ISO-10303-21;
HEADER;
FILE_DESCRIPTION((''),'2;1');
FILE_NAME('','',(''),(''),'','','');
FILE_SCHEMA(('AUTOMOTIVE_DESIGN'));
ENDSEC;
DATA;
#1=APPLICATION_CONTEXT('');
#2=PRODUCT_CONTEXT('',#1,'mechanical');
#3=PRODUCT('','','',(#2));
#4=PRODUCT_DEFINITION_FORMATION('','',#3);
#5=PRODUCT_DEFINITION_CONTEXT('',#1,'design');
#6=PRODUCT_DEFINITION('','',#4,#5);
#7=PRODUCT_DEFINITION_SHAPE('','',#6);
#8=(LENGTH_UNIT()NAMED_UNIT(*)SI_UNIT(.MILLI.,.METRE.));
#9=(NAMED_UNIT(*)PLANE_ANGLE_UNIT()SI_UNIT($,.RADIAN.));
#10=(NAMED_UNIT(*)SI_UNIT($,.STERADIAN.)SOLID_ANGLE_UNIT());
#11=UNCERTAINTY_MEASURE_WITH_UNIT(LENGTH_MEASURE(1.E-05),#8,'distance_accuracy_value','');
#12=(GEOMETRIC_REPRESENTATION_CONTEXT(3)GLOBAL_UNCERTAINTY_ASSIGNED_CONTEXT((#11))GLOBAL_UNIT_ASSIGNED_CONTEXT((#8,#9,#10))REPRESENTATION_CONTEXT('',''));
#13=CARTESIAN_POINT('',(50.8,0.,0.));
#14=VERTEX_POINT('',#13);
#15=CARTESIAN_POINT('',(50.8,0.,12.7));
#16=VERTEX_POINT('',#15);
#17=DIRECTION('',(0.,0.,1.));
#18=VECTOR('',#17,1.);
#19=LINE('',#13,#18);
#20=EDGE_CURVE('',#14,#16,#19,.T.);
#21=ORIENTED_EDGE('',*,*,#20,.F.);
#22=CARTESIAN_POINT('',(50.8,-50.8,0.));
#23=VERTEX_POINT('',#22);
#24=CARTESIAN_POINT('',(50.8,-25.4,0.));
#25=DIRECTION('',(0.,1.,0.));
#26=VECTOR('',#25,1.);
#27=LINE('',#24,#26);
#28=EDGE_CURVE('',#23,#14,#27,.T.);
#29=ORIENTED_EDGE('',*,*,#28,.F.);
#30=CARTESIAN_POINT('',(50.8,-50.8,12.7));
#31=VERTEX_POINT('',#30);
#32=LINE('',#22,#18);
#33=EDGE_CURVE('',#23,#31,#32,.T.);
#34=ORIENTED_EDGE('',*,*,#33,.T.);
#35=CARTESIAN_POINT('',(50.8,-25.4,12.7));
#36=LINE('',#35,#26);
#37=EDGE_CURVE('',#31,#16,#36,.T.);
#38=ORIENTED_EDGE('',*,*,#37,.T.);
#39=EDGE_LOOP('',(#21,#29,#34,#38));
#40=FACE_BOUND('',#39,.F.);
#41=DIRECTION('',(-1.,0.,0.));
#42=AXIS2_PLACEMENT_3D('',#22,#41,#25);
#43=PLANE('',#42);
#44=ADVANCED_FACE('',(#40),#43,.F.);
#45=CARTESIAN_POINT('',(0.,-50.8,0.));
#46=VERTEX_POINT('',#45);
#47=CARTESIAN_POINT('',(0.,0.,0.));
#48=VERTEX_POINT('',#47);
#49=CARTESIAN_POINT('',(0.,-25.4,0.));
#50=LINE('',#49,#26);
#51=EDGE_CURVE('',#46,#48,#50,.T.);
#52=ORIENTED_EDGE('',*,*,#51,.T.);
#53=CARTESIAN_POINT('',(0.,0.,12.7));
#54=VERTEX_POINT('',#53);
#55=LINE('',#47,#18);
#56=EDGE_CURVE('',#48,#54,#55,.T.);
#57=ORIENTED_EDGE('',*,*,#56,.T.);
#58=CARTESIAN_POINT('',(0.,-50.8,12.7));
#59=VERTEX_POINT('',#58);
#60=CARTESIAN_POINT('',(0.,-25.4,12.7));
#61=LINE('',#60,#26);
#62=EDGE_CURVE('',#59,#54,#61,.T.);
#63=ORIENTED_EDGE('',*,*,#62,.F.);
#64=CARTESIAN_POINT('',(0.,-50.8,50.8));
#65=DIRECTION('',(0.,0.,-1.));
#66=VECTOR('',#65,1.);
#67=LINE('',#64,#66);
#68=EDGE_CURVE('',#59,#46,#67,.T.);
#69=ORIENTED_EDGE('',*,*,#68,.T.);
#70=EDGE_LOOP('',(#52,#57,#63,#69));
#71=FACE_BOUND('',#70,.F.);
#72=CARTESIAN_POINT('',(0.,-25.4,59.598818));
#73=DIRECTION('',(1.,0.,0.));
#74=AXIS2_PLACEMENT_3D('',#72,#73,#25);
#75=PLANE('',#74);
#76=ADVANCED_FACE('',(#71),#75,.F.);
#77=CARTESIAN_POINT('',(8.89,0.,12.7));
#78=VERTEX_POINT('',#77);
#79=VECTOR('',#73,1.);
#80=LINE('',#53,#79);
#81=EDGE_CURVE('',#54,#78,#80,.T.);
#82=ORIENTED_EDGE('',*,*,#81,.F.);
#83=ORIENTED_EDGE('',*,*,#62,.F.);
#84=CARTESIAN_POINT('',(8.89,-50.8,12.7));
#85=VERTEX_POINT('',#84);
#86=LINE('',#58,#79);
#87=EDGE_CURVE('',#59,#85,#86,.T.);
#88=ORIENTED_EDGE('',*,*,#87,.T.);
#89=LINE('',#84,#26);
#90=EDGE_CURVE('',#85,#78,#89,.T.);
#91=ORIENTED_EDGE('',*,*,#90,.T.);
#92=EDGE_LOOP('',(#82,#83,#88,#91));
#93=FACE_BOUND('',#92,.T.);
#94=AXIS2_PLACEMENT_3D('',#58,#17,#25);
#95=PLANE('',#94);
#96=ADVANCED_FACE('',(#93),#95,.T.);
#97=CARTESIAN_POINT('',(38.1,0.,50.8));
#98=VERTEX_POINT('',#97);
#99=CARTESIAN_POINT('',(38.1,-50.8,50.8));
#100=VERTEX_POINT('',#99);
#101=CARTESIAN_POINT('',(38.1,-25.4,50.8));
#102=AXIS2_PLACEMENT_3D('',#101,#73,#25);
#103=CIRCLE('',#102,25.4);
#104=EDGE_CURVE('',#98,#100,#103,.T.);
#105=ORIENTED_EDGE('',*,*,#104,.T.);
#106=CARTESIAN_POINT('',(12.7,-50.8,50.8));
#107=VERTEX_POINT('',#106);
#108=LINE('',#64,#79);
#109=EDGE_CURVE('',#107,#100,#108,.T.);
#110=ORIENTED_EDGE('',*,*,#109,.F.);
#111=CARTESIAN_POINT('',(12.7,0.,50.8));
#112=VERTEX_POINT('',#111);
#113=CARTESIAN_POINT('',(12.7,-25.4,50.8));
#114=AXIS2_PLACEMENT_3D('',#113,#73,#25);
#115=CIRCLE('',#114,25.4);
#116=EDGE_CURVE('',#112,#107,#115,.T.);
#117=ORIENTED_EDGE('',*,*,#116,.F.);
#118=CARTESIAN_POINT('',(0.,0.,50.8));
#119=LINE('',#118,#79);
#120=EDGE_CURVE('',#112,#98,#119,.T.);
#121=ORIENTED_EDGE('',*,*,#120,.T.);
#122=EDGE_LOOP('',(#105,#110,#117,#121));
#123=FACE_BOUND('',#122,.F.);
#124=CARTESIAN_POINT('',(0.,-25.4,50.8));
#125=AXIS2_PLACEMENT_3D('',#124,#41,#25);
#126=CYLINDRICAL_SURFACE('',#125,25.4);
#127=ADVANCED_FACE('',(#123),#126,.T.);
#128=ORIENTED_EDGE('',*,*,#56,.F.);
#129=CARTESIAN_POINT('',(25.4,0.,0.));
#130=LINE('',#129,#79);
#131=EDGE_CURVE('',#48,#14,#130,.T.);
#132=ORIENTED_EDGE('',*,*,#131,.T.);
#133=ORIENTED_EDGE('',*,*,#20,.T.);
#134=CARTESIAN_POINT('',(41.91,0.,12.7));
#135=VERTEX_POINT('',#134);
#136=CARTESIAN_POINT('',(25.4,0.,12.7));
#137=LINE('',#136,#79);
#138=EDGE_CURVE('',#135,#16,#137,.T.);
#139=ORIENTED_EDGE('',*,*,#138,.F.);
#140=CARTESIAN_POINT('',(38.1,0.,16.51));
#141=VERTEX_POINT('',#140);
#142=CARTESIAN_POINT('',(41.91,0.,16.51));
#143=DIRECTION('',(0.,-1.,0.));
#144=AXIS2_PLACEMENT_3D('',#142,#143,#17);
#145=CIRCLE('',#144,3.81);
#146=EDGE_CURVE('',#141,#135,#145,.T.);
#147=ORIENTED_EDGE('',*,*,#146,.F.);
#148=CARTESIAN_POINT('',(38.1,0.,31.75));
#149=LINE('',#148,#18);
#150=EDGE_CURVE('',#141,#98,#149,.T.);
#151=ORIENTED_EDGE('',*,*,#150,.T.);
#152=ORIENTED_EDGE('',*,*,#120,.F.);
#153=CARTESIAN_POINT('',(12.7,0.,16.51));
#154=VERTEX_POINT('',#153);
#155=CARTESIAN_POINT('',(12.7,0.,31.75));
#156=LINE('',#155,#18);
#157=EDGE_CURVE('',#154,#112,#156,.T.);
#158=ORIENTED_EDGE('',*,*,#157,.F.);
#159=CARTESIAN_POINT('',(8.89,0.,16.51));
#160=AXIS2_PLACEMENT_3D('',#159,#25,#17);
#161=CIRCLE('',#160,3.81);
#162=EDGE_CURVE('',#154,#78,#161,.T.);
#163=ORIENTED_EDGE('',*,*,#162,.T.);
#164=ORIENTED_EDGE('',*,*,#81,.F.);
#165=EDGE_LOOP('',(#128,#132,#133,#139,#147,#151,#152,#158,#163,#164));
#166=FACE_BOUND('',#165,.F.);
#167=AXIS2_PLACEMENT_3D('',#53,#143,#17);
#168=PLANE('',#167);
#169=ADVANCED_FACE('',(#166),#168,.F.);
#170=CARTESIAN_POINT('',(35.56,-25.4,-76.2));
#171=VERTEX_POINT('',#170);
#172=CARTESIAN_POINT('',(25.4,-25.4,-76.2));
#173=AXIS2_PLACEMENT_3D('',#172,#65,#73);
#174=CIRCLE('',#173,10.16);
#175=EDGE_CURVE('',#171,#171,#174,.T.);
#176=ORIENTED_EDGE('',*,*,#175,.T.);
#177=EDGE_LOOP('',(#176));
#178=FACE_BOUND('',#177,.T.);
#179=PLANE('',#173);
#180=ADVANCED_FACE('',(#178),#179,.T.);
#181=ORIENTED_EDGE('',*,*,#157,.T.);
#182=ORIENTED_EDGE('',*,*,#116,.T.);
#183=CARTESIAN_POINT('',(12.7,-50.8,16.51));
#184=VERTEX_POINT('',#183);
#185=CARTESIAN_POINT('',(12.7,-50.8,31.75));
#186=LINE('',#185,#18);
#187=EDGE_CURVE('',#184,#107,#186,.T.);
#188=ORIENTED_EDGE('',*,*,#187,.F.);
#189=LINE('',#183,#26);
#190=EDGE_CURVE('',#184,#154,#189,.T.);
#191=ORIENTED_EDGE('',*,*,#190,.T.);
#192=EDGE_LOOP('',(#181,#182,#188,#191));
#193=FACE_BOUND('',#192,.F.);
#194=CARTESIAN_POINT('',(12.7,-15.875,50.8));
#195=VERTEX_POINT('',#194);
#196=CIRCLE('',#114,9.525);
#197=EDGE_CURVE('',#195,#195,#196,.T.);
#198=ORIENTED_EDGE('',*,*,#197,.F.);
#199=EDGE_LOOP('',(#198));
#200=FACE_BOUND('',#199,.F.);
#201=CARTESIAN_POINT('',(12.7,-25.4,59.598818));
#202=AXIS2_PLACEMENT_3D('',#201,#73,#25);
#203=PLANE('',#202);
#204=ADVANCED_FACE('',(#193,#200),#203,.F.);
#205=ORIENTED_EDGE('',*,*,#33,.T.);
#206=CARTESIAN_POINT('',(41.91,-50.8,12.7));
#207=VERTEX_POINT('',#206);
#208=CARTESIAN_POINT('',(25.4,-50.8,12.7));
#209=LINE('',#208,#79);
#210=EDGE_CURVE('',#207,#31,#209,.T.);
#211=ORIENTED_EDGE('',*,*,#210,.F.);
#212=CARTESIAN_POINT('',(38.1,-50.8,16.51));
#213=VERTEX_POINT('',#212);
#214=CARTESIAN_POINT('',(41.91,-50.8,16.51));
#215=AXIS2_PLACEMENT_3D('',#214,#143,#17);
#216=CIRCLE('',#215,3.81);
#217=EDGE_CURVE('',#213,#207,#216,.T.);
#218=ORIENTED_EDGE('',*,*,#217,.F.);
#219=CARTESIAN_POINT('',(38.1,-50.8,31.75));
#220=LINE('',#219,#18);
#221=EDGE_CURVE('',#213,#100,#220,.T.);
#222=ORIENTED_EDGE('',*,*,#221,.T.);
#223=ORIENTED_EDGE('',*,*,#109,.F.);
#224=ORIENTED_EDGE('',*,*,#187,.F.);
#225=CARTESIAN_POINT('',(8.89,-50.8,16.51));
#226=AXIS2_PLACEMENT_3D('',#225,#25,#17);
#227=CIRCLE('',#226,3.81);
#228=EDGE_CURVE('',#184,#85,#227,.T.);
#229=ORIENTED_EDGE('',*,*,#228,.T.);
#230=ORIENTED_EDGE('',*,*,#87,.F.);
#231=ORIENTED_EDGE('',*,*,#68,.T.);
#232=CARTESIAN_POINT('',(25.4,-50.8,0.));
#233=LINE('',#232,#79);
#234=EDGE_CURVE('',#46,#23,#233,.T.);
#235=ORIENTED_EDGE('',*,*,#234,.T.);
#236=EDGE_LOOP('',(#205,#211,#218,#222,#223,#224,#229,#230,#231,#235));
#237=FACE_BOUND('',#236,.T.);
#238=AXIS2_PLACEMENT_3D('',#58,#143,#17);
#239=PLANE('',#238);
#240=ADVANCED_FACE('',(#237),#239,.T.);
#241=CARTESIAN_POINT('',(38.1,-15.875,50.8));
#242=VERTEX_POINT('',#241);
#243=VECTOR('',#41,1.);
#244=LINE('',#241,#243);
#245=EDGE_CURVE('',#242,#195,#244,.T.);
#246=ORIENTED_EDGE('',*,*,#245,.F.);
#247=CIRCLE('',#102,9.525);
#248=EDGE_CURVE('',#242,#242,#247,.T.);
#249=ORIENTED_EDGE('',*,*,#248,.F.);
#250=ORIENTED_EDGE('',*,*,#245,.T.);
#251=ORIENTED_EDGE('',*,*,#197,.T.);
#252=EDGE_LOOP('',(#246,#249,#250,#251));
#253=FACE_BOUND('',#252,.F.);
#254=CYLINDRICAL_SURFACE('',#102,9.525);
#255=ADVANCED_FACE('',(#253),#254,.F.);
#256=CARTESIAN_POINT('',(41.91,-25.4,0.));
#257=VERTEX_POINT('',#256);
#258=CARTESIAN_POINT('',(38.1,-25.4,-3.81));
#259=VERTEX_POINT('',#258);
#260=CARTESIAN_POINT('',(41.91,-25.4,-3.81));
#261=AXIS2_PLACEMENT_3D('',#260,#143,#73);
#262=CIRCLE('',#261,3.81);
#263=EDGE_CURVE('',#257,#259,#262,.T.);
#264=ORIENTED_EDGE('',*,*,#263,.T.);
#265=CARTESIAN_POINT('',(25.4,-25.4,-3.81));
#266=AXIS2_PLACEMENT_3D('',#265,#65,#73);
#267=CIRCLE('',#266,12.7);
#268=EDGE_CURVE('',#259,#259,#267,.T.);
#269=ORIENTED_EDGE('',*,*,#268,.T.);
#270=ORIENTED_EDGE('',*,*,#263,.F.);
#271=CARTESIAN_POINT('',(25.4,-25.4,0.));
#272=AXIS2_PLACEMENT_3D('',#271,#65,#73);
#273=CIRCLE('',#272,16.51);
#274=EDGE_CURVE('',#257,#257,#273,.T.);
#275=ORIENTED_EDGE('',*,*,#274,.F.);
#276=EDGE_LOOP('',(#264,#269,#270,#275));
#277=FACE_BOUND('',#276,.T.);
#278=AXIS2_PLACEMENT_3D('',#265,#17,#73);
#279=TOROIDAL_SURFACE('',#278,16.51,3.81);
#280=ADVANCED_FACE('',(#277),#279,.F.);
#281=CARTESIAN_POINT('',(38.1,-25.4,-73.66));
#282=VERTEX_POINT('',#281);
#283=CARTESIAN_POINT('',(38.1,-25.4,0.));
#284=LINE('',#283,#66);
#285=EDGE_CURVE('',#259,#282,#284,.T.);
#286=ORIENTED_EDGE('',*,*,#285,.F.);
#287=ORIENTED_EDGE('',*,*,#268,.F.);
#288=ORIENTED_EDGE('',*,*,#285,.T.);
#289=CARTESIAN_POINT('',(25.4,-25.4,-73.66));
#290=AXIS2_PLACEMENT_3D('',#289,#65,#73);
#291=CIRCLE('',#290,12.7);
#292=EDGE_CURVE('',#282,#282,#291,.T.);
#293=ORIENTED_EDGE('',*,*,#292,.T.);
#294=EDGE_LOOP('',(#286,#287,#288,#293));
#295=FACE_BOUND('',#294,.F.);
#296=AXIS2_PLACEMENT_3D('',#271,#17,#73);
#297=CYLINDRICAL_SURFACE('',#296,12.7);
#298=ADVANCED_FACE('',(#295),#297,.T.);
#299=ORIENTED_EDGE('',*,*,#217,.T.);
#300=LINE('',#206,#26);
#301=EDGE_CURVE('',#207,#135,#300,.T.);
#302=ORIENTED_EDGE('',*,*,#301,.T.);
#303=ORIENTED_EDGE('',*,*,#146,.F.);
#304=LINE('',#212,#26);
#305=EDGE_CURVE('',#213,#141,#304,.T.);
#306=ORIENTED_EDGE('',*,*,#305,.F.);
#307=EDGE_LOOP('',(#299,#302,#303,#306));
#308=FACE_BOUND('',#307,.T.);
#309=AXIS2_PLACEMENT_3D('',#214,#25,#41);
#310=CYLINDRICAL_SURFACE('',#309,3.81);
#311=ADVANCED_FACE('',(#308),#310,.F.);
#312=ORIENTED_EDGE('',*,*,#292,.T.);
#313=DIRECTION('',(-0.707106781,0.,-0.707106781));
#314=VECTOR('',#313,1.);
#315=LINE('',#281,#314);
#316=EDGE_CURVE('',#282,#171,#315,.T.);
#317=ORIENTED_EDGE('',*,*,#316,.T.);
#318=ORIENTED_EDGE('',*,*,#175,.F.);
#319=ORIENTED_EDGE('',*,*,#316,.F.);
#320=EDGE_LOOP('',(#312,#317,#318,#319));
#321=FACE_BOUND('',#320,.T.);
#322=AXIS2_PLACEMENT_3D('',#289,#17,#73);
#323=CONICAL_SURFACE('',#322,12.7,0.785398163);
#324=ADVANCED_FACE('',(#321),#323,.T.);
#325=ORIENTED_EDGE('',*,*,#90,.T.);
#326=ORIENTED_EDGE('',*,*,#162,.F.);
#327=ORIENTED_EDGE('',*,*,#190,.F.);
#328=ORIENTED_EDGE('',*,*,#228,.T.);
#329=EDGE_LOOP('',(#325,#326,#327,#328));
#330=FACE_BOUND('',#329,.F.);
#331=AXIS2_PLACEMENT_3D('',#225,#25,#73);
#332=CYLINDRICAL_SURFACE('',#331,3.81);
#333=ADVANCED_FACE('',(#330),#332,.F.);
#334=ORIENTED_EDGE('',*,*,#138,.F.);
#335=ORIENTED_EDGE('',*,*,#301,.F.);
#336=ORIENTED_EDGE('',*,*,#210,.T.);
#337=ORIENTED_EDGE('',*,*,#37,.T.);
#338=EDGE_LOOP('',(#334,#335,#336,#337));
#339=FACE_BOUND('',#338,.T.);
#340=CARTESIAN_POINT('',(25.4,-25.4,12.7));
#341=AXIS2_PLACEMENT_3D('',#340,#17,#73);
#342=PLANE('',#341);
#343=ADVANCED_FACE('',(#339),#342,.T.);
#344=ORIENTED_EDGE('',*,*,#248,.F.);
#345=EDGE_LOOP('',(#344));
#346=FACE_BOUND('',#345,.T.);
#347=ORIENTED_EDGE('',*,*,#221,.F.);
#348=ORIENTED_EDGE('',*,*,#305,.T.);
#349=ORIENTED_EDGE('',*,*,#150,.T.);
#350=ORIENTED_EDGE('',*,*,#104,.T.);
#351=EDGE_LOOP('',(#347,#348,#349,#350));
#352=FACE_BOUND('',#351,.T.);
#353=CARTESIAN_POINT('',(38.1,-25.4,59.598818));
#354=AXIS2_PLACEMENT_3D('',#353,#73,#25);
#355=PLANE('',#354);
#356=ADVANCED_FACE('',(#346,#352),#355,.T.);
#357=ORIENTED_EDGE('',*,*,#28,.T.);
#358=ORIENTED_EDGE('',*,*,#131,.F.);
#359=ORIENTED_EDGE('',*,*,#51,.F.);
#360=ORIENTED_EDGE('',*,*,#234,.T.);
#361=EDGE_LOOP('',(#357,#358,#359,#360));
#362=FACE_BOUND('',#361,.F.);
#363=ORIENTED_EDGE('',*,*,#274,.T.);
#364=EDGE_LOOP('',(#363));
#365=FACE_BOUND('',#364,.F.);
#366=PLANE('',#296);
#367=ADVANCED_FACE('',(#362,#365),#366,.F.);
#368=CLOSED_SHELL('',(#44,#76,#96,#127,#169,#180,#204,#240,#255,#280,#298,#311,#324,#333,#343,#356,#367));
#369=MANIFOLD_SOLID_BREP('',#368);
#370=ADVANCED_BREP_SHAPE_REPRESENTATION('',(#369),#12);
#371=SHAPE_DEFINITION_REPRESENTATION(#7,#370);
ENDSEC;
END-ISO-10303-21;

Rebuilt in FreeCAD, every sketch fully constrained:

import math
import FreeCAD as App
import Part
import Sketcher

V = App.Vector
Q = App.Units.Quantity


def edges_at(feature, points):
    """Names of the edges that pass closest to the given points."""
    edges = feature.Shape.Edges
    near = lambda p: min(range(len(edges)), key=lambda i: edges[i].distToShape(Part.Vertex(*p))[0])
    return sorted({f"Edge{near(p) + 1}" for p in points})


def add_polygon(sketch, points):
    """Adds a closed chain of lines whose ends are joined by coincident constraints."""
    first, n = sketch.GeometryCount, len(points)
    for a, b in zip(points, points[1:] + points[:1]):
        sketch.addGeometry(Part.LineSegment(App.Vector(*a, 0), App.Vector(*b, 0)), False)
    for i in range(n):
        sketch.addConstraint(Sketcher.Constraint("Coincident", first + i, 2, first + (i + 1) % n, 1))

doc = App.newDocument("Part")
body = doc.addObject("PartDesign::Body", "Body")

sketch1 = body.newObject("Sketcher::SketchObject", "Sketch")
sketch1.AttachmentSupport = (doc.getObject("XY_Plane"), [""])
sketch1.MapMode = "FlatFace"
add_polygon(sketch1, [(0, 0), (0, -51), (51, -51), (51, 0)])
sketch1.addConstraint(Sketcher.Constraint("Vertical", 0))
sketch1.addConstraint(Sketcher.Constraint("Horizontal", 1))
sketch1.addConstraint(Sketcher.Constraint("Vertical", 2))
sketch1.addConstraint(Sketcher.Constraint("Horizontal", 3))
sketch1.addConstraint(Sketcher.Constraint("Coincident", 3, 2, -1, 1))
sketch1.addConstraint(Sketcher.Constraint("Equal", 3, 0))
sketch1.addConstraint(Sketcher.Constraint("DistanceX", 1, 1, 1, 2, Q("2 in")))
pad1 = body.newObject("PartDesign::Pad", "Pad")
pad1.Profile = sketch1
pad1.Length = Q("0.5 in")

sketch2 = body.newObject("Sketcher::SketchObject", "Sketch001")
sketch2.AttachmentSupport = (doc.getObject("XY_Plane"), [""])
sketch2.MapMode = "FlatFace"
sketch2.addGeometry(Part.Circle(V(25, -25, 0), V(0, 0, 1), 13), False)
sketch2.addConstraint(Sketcher.Constraint("Diameter", 0, Q("1 in")))
sketch2.addConstraint(Sketcher.Constraint("DistanceX", -1, 1, 0, 3, Q("1 in")))
sketch2.addConstraint(Sketcher.Constraint("DistanceY", 0, 3, -1, 1, Q("1 in")))
pad2 = body.newObject("PartDesign::Pad", "Pad001")
pad2.Profile = sketch2
pad2.Length = Q("3 in")
pad2.Reversed = True

sketch3 = body.newObject("Sketcher::SketchObject", "Sketch002")
sketch3.AttachmentSupport = (doc.getObject("YZ_Plane"), [""])
sketch3.MapMode = "FlatFace"
sketch3.addGeometry(Part.ArcOfCircle(Part.Circle(V(-25, 51, 0), V(0, 0, 1), 25), math.radians(0), math.radians(180)), False)
sketch3.addGeometry(Part.LineSegment(V(-51, 51, 0), V(-51, 13, 0)), False)
sketch3.addGeometry(Part.LineSegment(V(-51, 13, 0), V(0, 13, 0)), False)
sketch3.addGeometry(Part.LineSegment(V(0, 13, 0), V(0, 51, 0)), False)
sketch3.addConstraint(Sketcher.Constraint("Tangent", 0, 2, 1, 1))
sketch3.addConstraint(Sketcher.Constraint("Coincident", 1, 2, 2, 1))
sketch3.addConstraint(Sketcher.Constraint("Coincident", 2, 2, 3, 1))
sketch3.addConstraint(Sketcher.Constraint("Tangent", 3, 2, 0, 1))
sketch3.addConstraint(Sketcher.Constraint("Vertical", 1))
sketch3.addConstraint(Sketcher.Constraint("Horizontal", 2))
sketch3.addConstraint(Sketcher.Constraint("Vertical", 3))
sketch3.addConstraint(Sketcher.Constraint("PointOnObject", 2, 2, -2))
sketch3.addConstraint(Sketcher.Constraint("Radius", 0, Q("1 in")))
sketch3.addConstraint(Sketcher.Constraint("DistanceY", 1, 2, 1, 1, Q("1.5 in")))
sketch3.addConstraint(Sketcher.Constraint("DistanceY", -1, 1, 0, 3, Q("2 in")))
pad3 = body.newObject("PartDesign::Pad", "Pad002")
pad3.Profile = sketch3
pad3.Length = Q("1.5 in")

sketch4 = body.newObject("Sketcher::SketchObject", "Sketch003")
sketch4.AttachmentSupport = (doc.getObject("YZ_Plane"), [""])
sketch4.MapMode = "FlatFace"
sketch4.addGeometry(Part.ArcOfCircle(Part.Circle(V(-25, 51, 0), V(0, 0, 1), 25), math.radians(0), math.radians(180)), False)
sketch4.addGeometry(Part.LineSegment(V(-51, 51, 0), V(-51, 13, 0)), False)
sketch4.addGeometry(Part.LineSegment(V(-51, 13, 0), V(0, 13, 0)), False)
sketch4.addGeometry(Part.LineSegment(V(0, 13, 0), V(0, 51, 0)), False)
sketch4.addConstraint(Sketcher.Constraint("Tangent", 0, 2, 1, 1))
sketch4.addConstraint(Sketcher.Constraint("Coincident", 1, 2, 2, 1))
sketch4.addConstraint(Sketcher.Constraint("Coincident", 2, 2, 3, 1))
sketch4.addConstraint(Sketcher.Constraint("Tangent", 3, 2, 0, 1))
sketch4.addConstraint(Sketcher.Constraint("Vertical", 1))
sketch4.addConstraint(Sketcher.Constraint("Horizontal", 2))
sketch4.addConstraint(Sketcher.Constraint("Vertical", 3))
sketch4.addConstraint(Sketcher.Constraint("PointOnObject", 2, 2, -2))
sketch4.addConstraint(Sketcher.Constraint("Radius", 0, Q("1 in")))
sketch4.addConstraint(Sketcher.Constraint("DistanceY", 1, 2, 1, 1, Q("1.5 in")))
sketch4.addConstraint(Sketcher.Constraint("DistanceY", -1, 1, 0, 3, Q("2 in")))
pocket1 = body.newObject("PartDesign::Pocket", "Pocket")
pocket1.Profile = sketch4
pocket1.Length = Q("0.5 in")
pocket1.Reversed = True

sketch5 = body.newObject("Sketcher::SketchObject", "Sketch004")
sketch5.AttachmentSupport = (doc.getObject("YZ_Plane"), [""])
sketch5.MapMode = "FlatFace"
sketch5.AttachmentOffset = App.Placement(V(0, 0, 1.5 * 25.4), App.Rotation())
sketch5.addGeometry(Part.Circle(V(-25, 51, 0), V(0, 0, 1), 10), False)
sketch5.addConstraint(Sketcher.Constraint("Diameter", 0, Q("0.75 in")))
sketch5.addConstraint(Sketcher.Constraint("DistanceX", 0, 3, -1, 1, Q("1 in")))
sketch5.addConstraint(Sketcher.Constraint("DistanceY", -1, 1, 0, 3, Q("2 in")))
pocket2 = body.newObject("PartDesign::Pocket", "Pocket001")
pocket2.Profile = sketch5
pocket2.Type = "ThroughAll"
doc.recompute()

fillet = body.newObject("PartDesign::Fillet", "Fillet")
fillet.Base = (pocket2, edges_at(pocket2, [(38.1, -25.4, 12.7), (12.7, -25.4, 12.7), (12.7, -25.4, 0)]))
fillet.Radius = Q("0.15 in")
doc.recompute()

chamfer = body.newObject("PartDesign::Chamfer", "Chamfer")
chamfer.Base = (fillet, edges_at(fillet, [(12.7, -25.4, -76.2)]))
chamfer.ChamferType = "Two distances"
chamfer.Size = Q("0.1 in")
chamfer.Size2 = Q("0.1 in")

doc.recompute()
